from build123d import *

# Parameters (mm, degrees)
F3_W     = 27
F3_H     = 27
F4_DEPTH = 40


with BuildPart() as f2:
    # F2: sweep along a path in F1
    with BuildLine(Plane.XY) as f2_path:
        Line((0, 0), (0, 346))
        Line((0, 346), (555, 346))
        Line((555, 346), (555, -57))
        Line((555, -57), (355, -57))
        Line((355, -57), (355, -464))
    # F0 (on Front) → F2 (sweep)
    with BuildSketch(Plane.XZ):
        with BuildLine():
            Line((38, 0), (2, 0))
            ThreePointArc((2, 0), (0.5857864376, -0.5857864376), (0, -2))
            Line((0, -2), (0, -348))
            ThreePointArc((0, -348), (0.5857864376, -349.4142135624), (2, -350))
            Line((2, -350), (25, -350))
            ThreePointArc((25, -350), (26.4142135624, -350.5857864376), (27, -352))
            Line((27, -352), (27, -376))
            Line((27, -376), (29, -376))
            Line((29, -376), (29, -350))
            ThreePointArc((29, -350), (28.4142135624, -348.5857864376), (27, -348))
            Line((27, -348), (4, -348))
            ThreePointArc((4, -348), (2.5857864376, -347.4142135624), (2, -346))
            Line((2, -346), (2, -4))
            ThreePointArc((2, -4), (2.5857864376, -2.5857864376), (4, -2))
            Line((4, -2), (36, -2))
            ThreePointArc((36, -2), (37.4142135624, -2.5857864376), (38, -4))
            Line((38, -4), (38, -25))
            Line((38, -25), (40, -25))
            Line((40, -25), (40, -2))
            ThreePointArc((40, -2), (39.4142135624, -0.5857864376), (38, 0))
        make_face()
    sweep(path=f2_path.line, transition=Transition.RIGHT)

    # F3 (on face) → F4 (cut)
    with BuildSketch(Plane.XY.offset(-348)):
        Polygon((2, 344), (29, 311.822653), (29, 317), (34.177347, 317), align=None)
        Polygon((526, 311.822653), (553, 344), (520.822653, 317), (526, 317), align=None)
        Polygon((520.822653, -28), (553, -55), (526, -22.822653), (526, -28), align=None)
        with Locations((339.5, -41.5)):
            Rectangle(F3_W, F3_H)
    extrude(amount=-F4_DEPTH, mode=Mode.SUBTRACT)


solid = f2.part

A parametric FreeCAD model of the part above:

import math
import FreeCAD as App
import Part
import Sketcher

V = App.Vector
Q = App.Units.Quantity

doc = App.newDocument("Part")
body = doc.addObject("PartDesign::Body", "Body")

sketch1 = body.newObject("Sketcher::SketchObject", "Sketch")
sketch1.AttachmentSupport = (doc.getObject("XZ_Plane"), [""])
sketch1.MapMode = "FlatFace"
sketch1.addGeometry(Part.LineSegment(V(38, 0, 0), V(2, 0, 0)), False)
sketch1.addGeometry(Part.ArcOfCircle(Part.Circle(V(2, -2, 0), V(0, 0, 1), 2), math.radians(90), math.radians(180)), False)
sketch1.addGeometry(Part.LineSegment(V(0, -2, 0), V(0, -348, 0)), False)
sketch1.addGeometry(Part.ArcOfCircle(Part.Circle(V(2, -348, 0), V(0, 0, 1), 2), math.radians(180), math.radians(270)), False)
sketch1.addGeometry(Part.LineSegment(V(2, -350, 0), V(25, -350, 0)), False)
sketch1.addGeometry(Part.ArcOfCircle(Part.Circle(V(25, -352, 0), V(0, 0, 1), 2), math.radians(0), math.radians(90)), False)
sketch1.addGeometry(Part.LineSegment(V(27, -352, 0), V(27, -376, 0)), False)
sketch1.addGeometry(Part.LineSegment(V(27, -376, 0), V(29, -376, 0)), False)
sketch1.addGeometry(Part.LineSegment(V(29, -376, 0), V(29, -350, 0)), False)
sketch1.addGeometry(Part.ArcOfCircle(Part.Circle(V(27, -350, 0), V(0, 0, 1), 2), math.radians(0), math.radians(90)), False)
sketch1.addGeometry(Part.LineSegment(V(27, -348, 0), V(4, -348, 0)), False)
sketch1.addGeometry(Part.ArcOfCircle(Part.Circle(V(4, -346, 0), V(0, 0, 1), 2), math.radians(180), math.radians(270)), False)
sketch1.addGeometry(Part.LineSegment(V(2, -346, 0), V(2, -4, 0)), False)
sketch1.addGeometry(Part.ArcOfCircle(Part.Circle(V(4, -4, 0), V(0, 0, 1), 2), math.radians(90), math.radians(180)), False)
sketch1.addGeometry(Part.LineSegment(V(4, -2, 0), V(36, -2, 0)), False)
sketch1.addGeometry(Part.ArcOfCircle(Part.Circle(V(36, -4, 0), V(0, 0, 1), 2), math.radians(0), math.radians(90)), False)
sketch1.addGeometry(Part.LineSegment(V(38, -4, 0), V(38, -25, 0)), False)
sketch1.addGeometry(Part.LineSegment(V(38, -25, 0), V(40, -25, 0)), False)
sketch1.addGeometry(Part.LineSegment(V(40, -25, 0), V(40, -2, 0)), False)
sketch1.addGeometry(Part.ArcOfCircle(Part.Circle(V(38, -2, 0), V(0, 0, 1), 2), math.radians(0), math.radians(90)), False)
sketch1.addConstraint(Sketcher.Constraint("Tangent", 0, 2, 1, 1))
sketch1.addConstraint(Sketcher.Constraint("Tangent", 1, 2, 2, 1))
sketch1.addConstraint(Sketcher.Constraint("Tangent", 2, 2, 3, 1))
sketch1.addConstraint(Sketcher.Constraint("Tangent", 3, 2, 4, 1))
sketch1.addConstraint(Sketcher.Constraint("Tangent", 4, 2, 5, 2))
sketch1.addConstraint(Sketcher.Constraint("Tangent", 5, 1, 6, 1))
sketch1.addConstraint(Sketcher.Constraint("Coincident", 6, 2, 7, 1))
sketch1.addConstraint(Sketcher.Constraint("Coincident", 7, 2, 8, 1))
sketch1.addConstraint(Sketcher.Constraint("Tangent", 8, 2, 9, 1))
sketch1.addConstraint(Sketcher.Constraint("Tangent", 9, 2, 10, 1))
sketch1.addConstraint(Sketcher.Constraint("Tangent", 10, 2, 11, 2))
sketch1.addConstraint(Sketcher.Constraint("Tangent", 11, 1, 12, 1))
sketch1.addConstraint(Sketcher.Constraint("Tangent", 12, 2, 13, 2))
sketch1.addConstraint(Sketcher.Constraint("Tangent", 13, 1, 14, 1))
sketch1.addConstraint(Sketcher.Constraint("Tangent", 14, 2, 15, 2))
sketch1.addConstraint(Sketcher.Constraint("Tangent", 15, 1, 16, 1))
sketch1.addConstraint(Sketcher.Constraint("Coincident", 16, 2, 17, 1))
sketch1.addConstraint(Sketcher.Constraint("Coincident", 17, 2, 18, 1))
sketch1.addConstraint(Sketcher.Constraint("Tangent", 18, 2, 19, 1))
sketch1.addConstraint(Sketcher.Constraint("Tangent", 19, 2, 0, 1))
sketch1.addConstraint(Sketcher.Constraint("Horizontal", 0))
sketch1.addConstraint(Sketcher.Constraint("Vertical", 2))
sketch1.addConstraint(Sketcher.Constraint("Horizontal", 4))
sketch1.addConstraint(Sketcher.Constraint("Vertical", 6))
sketch1.addConstraint(Sketcher.Constraint("Horizontal", 7))
sketch1.addConstraint(Sketcher.Constraint("Vertical", 8))
sketch1.addConstraint(Sketcher.Constraint("Horizontal", 10))
sketch1.addConstraint(Sketcher.Constraint("Vertical", 12))
sketch1.addConstraint(Sketcher.Constraint("Horizontal", 14))
sketch1.addConstraint(Sketcher.Constraint("Vertical", 16))
sketch1.addConstraint(Sketcher.Constraint("Horizontal", 17))
sketch1.addConstraint(Sketcher.Constraint("Vertical", 18))
sketch1.addConstraint(Sketcher.Constraint("Equal", 1, 3))
sketch1.addConstraint(Sketcher.Constraint("Equal", 3, 5))
sketch1.addConstraint(Sketcher.Constraint("Equal", 5, 9))
sketch1.addConstraint(Sketcher.Constraint("Equal", 9, 11))
sketch1.addConstraint(Sketcher.Constraint("Equal", 11, 13))
sketch1.addConstraint(Sketcher.Constraint("Equal", 13, 15))
sketch1.addConstraint(Sketcher.Constraint("Equal", 15, 19))
sketch1.addConstraint(Sketcher.Constraint("PointOnObject", 0, 2, -1))
sketch1.addConstraint(Sketcher.Constraint("PointOnObject", 1, 2, -2))
sketch1.addConstraint(Sketcher.Constraint("Horizontal", 9, 3, 3, 2))
sketch1.addConstraint(Sketcher.Constraint("Horizontal", 1, 2, 13, 1))
sketch1.addConstraint(Sketcher.Constraint("Vertical", 9, 3, 5, 1))
sketch1.addConstraint(Sketcher.Constraint("Vertical", 3, 2, 11, 1))
sketch1.addConstraint(Sketcher.Constraint("Vertical", 19, 3, 15, 1))
sketch1.addConstraint(Sketcher.Constraint("Equal", 10, 18))
sketch1.addConstraint(Sketcher.Constraint("Radius", 1, 2.0))
sketch1.addConstraint(Sketcher.Constraint("DistanceX", 0, 2, 0, 1, 36.0))
sketch1.addConstraint(Sketcher.Constraint("DistanceX", 4, 1, 4, 2, 23.0))
sketch1.addConstraint(Sketcher.Constraint("DistanceY", 2, 2, 2, 1, 346.0))
sketch1.addConstraint(Sketcher.Constraint("DistanceY", 6, 2, 6, 1, 24.0))

sketch2 = body.newObject("Sketcher::SketchObject", "Sketch001")
sketch2.AttachmentSupport = (doc.getObject("XY_Plane"), [""])
sketch2.MapMode = "FlatFace"
sketch2.addGeometry(Part.LineSegment(V(0, 0, 0), V(0, 346, 0)), False)
sketch2.addGeometry(Part.LineSegment(V(0, 346, 0), V(555, 346, 0)), False)
sketch2.addGeometry(Part.LineSegment(V(555, 346, 0), V(555, -57, 0)), False)
sketch2.addGeometry(Part.LineSegment(V(555, -57, 0), V(355, -57, 0)), False)
sketch2.addGeometry(Part.LineSegment(V(355, -57, 0), V(355, -464, 0)), False)
sketch2.addConstraint(Sketcher.Constraint("Coincident", 0, 2, 1, 1))
sketch2.addConstraint(Sketcher.Constraint("Coincident", 1, 2, 2, 1))
sketch2.addConstraint(Sketcher.Constraint("Coincident", 2, 2, 3, 1))
sketch2.addConstraint(Sketcher.Constraint("Coincident", 3, 2, 4, 1))
sketch2.addConstraint(Sketcher.Constraint("Vertical", 0))
sketch2.addConstraint(Sketcher.Constraint("Horizontal", 1))
sketch2.addConstraint(Sketcher.Constraint("Vertical", 2))
sketch2.addConstraint(Sketcher.Constraint("Horizontal", 3))
sketch2.addConstraint(Sketcher.Constraint("Vertical", 4))
sketch2.addConstraint(Sketcher.Constraint("Coincident", 0, 1, -1, 1))
sketch2.addConstraint(Sketcher.Constraint("DistanceX", 1, 1, 1, 2, 555.0))
sketch2.addConstraint(Sketcher.Constraint("DistanceX", 3, 2, 3, 1, 200.0))
sketch2.addConstraint(Sketcher.Constraint("DistanceY", 0, 1, 0, 2, 346.0))
sketch2.addConstraint(Sketcher.Constraint("DistanceY", 2, 2, 2, 1, 403.0))
sketch2.addConstraint(Sketcher.Constraint("DistanceY", 4, 2, 4, 1, 407.0))
doc.recompute()

additivepipe = body.newObject("PartDesign::AdditivePipe", "AdditivePipe")
additivepipe.Profile = sketch1
additivepipe.Spine = (sketch2, ["Edge1", "Edge2", "Edge3", "Edge4", "Edge5"])
additivepipe.Transition = "Right corner"

sketch3 = body.newObject("Sketcher::SketchObject", "Sketch002")
sketch3.AttachmentSupport = (doc.getObject("XY_Plane"), [""])
sketch3.MapMode = "FlatFace"
sketch3.AttachmentOffset = App.Placement(V(0, 0, -348), App.Rotation())
sketch3.addGeometry(Part.LineSegment(V(2, 344, 0), V(29, 312, 0)), False)
sketch3.addGeometry(Part.LineSegment(V(29, 312, 0), V(29, 317, 0)), False)
sketch3.addGeometry(Part.LineSegment(V(29, 317, 0), V(34, 317, 0)), False)
sketch3.addGeometry(Part.LineSegment(V(34, 317, 0), V(2, 344, 0)), False)
sketch3.addGeometry(Part.LineSegment(V(526, 312, 0), V(553, 344, 0)), False)
sketch3.addGeometry(Part.LineSegment(V(553, 344, 0), V(521, 317, 0)), False)
sketch3.addGeometry(Part.LineSegment(V(521, 317, 0), V(526, 317, 0)), False)
sketch3.addGeometry(Part.LineSegment(V(526, 317, 0), V(526, 312, 0)), False)
sketch3.addGeometry(Part.LineSegment(V(521, -28, 0), V(553, -55, 0)), False)
sketch3.addGeometry(Part.LineSegment(V(553, -55, 0), V(526, -23, 0)), False)
sketch3.addGeometry(Part.LineSegment(V(526, -23, 0), V(526, -28, 0)), False)
sketch3.addGeometry(Part.LineSegment(V(526, -28, 0), V(521, -28, 0)), False)
sketch3.addGeometry(Part.LineSegment(V(326, -28, 0), V(326, -55, 0)), False)
sketch3.addGeometry(Part.LineSegment(V(326, -55, 0), V(353, -55, 0)), False)
sketch3.addGeometry(Part.LineSegment(V(353, -55, 0), V(353, -28, 0)), False)
sketch3.addGeometry(Part.LineSegment(V(353, -28, 0), V(326, -28, 0)), False)
sketch3.addConstraint(Sketcher.Constraint("Coincident", 0, 2, 1, 1))
sketch3.addConstraint(Sketcher.Constraint("Coincident", 1, 2, 2, 1))
sketch3.addConstraint(Sketcher.Constraint("Coincident", 2, 2, 3, 1))
sketch3.addConstraint(Sketcher.Constraint("Coincident", 3, 2, 0, 1))
sketch3.addConstraint(Sketcher.Constraint("Coincident", 4, 2, 5, 1))
sketch3.addConstraint(Sketcher.Constraint("Coincident", 5, 2, 6, 1))
sketch3.addConstraint(Sketcher.Constraint("Coincident", 6, 2, 7, 1))
sketch3.addConstraint(Sketcher.Constraint("Coincident", 7, 2, 4, 1))
sketch3.addConstraint(Sketcher.Constraint("Coincident", 8, 2, 9, 1))
sketch3.addConstraint(Sketcher.Constraint("Coincident", 9, 2, 10, 1))
sketch3.addConstraint(Sketcher.Constraint("Coincident", 10, 2, 11, 1))
sketch3.addConstraint(Sketcher.Constraint("Coincident", 11, 2, 8, 1))
sketch3.addConstraint(Sketcher.Constraint("Coincident", 12, 2, 13, 1))
sketch3.addConstraint(Sketcher.Constraint("Coincident", 13, 2, 14, 1))
sketch3.addConstraint(Sketcher.Constraint("Coincident", 14, 2, 15, 1))
sketch3.addConstraint(Sketcher.Constraint("Coincident", 15, 2, 12, 1))
sketch3.addConstraint(Sketcher.Constraint("Vertical", 1))
sketch3.addConstraint(Sketcher.Constraint("Horizontal", 2))
sketch3.addConstraint(Sketcher.Constraint("Horizontal", 6))
sketch3.addConstraint(Sketcher.Constraint("Vertical", 7))
sketch3.addConstraint(Sketcher.Constraint("Vertical", 10))
sketch3.addConstraint(Sketcher.Constraint("Horizontal", 11))
sketch3.addConstraint(Sketcher.Constraint("Vertical", 12))
sketch3.addConstraint(Sketcher.Constraint("Horizontal", 13))
sketch3.addConstraint(Sketcher.Constraint("Vertical", 14))
sketch3.addConstraint(Sketcher.Constraint("Horizontal", 15))
sketch3.addConstraint(Sketcher.Constraint("Perpendicular", 3, 4))
sketch3.addConstraint(Sketcher.Constraint("Perpendicular", 0, 5))
sketch3.addConstraint(Sketcher.Constraint("Perpendicular", 4, 8))
sketch3.addConstraint(Sketcher.Constraint("Perpendicular", 5, 9))
sketch3.addConstraint(Sketcher.Constraint("Horizontal", 3, 2, 4, 2))
sketch3.addConstraint(Sketcher.Constraint("Horizontal", 2, 2, 5, 2))
sketch3.addConstraint(Sketcher.Constraint("Horizontal", 0, 2, 7, 2))
sketch3.addConstraint(Sketcher.Constraint("Horizontal", 8, 2, 12, 2))
sketch3.addConstraint(Sketcher.Constraint("Horizontal", 11, 2, 14, 2))
sketch3.addConstraint(Sketcher.Constraint("Vertical", 4, 2, 8, 2))
sketch3.addConstraint(Sketcher.Constraint("Vertical", 7, 2, 9, 2))
sketch3.addConstraint(Sketcher.Constraint("Vertical", 5, 2, 11, 2))
sketch3.addConstraint(Sketcher.Constraint("Equal", 2, 6))
sketch3.addConstraint(Sketcher.Constraint("Equal", 11, 1))
sketch3.addConstraint(Sketcher.Constraint("Equal", 15, 12))
sketch3.addConstraint(Sketcher.Constraint("DistanceX", 13, 1, 13, 2, 27.0))
sketch3.addConstraint(Sketcher.Constraint("Angle", 0, Q("-50 deg")))
sketch3.addConstraint(Sketcher.Constraint("DistanceX", -1, 1, 0, 2, 29.0))
sketch3.addConstraint(Sketcher.Constraint("DistanceY", -1, 1, 1, 2, 317.0))
sketch3.addConstraint(Sketcher.Constraint("DistanceX", -1, 1, 4, 2, 553.0))
sketch3.addConstraint(Sketcher.Constraint("DistanceY", 8, 2, -1, 1, 55.0))
sketch3.addConstraint(Sketcher.Constraint("DistanceX", -1, 1, 12, 2, 326.0))
pocket1 = body.newObject("PartDesign::Pocket", "Pocket")
pocket1.Profile = sketch3
pocket1.Length = 40

doc.recompute()
